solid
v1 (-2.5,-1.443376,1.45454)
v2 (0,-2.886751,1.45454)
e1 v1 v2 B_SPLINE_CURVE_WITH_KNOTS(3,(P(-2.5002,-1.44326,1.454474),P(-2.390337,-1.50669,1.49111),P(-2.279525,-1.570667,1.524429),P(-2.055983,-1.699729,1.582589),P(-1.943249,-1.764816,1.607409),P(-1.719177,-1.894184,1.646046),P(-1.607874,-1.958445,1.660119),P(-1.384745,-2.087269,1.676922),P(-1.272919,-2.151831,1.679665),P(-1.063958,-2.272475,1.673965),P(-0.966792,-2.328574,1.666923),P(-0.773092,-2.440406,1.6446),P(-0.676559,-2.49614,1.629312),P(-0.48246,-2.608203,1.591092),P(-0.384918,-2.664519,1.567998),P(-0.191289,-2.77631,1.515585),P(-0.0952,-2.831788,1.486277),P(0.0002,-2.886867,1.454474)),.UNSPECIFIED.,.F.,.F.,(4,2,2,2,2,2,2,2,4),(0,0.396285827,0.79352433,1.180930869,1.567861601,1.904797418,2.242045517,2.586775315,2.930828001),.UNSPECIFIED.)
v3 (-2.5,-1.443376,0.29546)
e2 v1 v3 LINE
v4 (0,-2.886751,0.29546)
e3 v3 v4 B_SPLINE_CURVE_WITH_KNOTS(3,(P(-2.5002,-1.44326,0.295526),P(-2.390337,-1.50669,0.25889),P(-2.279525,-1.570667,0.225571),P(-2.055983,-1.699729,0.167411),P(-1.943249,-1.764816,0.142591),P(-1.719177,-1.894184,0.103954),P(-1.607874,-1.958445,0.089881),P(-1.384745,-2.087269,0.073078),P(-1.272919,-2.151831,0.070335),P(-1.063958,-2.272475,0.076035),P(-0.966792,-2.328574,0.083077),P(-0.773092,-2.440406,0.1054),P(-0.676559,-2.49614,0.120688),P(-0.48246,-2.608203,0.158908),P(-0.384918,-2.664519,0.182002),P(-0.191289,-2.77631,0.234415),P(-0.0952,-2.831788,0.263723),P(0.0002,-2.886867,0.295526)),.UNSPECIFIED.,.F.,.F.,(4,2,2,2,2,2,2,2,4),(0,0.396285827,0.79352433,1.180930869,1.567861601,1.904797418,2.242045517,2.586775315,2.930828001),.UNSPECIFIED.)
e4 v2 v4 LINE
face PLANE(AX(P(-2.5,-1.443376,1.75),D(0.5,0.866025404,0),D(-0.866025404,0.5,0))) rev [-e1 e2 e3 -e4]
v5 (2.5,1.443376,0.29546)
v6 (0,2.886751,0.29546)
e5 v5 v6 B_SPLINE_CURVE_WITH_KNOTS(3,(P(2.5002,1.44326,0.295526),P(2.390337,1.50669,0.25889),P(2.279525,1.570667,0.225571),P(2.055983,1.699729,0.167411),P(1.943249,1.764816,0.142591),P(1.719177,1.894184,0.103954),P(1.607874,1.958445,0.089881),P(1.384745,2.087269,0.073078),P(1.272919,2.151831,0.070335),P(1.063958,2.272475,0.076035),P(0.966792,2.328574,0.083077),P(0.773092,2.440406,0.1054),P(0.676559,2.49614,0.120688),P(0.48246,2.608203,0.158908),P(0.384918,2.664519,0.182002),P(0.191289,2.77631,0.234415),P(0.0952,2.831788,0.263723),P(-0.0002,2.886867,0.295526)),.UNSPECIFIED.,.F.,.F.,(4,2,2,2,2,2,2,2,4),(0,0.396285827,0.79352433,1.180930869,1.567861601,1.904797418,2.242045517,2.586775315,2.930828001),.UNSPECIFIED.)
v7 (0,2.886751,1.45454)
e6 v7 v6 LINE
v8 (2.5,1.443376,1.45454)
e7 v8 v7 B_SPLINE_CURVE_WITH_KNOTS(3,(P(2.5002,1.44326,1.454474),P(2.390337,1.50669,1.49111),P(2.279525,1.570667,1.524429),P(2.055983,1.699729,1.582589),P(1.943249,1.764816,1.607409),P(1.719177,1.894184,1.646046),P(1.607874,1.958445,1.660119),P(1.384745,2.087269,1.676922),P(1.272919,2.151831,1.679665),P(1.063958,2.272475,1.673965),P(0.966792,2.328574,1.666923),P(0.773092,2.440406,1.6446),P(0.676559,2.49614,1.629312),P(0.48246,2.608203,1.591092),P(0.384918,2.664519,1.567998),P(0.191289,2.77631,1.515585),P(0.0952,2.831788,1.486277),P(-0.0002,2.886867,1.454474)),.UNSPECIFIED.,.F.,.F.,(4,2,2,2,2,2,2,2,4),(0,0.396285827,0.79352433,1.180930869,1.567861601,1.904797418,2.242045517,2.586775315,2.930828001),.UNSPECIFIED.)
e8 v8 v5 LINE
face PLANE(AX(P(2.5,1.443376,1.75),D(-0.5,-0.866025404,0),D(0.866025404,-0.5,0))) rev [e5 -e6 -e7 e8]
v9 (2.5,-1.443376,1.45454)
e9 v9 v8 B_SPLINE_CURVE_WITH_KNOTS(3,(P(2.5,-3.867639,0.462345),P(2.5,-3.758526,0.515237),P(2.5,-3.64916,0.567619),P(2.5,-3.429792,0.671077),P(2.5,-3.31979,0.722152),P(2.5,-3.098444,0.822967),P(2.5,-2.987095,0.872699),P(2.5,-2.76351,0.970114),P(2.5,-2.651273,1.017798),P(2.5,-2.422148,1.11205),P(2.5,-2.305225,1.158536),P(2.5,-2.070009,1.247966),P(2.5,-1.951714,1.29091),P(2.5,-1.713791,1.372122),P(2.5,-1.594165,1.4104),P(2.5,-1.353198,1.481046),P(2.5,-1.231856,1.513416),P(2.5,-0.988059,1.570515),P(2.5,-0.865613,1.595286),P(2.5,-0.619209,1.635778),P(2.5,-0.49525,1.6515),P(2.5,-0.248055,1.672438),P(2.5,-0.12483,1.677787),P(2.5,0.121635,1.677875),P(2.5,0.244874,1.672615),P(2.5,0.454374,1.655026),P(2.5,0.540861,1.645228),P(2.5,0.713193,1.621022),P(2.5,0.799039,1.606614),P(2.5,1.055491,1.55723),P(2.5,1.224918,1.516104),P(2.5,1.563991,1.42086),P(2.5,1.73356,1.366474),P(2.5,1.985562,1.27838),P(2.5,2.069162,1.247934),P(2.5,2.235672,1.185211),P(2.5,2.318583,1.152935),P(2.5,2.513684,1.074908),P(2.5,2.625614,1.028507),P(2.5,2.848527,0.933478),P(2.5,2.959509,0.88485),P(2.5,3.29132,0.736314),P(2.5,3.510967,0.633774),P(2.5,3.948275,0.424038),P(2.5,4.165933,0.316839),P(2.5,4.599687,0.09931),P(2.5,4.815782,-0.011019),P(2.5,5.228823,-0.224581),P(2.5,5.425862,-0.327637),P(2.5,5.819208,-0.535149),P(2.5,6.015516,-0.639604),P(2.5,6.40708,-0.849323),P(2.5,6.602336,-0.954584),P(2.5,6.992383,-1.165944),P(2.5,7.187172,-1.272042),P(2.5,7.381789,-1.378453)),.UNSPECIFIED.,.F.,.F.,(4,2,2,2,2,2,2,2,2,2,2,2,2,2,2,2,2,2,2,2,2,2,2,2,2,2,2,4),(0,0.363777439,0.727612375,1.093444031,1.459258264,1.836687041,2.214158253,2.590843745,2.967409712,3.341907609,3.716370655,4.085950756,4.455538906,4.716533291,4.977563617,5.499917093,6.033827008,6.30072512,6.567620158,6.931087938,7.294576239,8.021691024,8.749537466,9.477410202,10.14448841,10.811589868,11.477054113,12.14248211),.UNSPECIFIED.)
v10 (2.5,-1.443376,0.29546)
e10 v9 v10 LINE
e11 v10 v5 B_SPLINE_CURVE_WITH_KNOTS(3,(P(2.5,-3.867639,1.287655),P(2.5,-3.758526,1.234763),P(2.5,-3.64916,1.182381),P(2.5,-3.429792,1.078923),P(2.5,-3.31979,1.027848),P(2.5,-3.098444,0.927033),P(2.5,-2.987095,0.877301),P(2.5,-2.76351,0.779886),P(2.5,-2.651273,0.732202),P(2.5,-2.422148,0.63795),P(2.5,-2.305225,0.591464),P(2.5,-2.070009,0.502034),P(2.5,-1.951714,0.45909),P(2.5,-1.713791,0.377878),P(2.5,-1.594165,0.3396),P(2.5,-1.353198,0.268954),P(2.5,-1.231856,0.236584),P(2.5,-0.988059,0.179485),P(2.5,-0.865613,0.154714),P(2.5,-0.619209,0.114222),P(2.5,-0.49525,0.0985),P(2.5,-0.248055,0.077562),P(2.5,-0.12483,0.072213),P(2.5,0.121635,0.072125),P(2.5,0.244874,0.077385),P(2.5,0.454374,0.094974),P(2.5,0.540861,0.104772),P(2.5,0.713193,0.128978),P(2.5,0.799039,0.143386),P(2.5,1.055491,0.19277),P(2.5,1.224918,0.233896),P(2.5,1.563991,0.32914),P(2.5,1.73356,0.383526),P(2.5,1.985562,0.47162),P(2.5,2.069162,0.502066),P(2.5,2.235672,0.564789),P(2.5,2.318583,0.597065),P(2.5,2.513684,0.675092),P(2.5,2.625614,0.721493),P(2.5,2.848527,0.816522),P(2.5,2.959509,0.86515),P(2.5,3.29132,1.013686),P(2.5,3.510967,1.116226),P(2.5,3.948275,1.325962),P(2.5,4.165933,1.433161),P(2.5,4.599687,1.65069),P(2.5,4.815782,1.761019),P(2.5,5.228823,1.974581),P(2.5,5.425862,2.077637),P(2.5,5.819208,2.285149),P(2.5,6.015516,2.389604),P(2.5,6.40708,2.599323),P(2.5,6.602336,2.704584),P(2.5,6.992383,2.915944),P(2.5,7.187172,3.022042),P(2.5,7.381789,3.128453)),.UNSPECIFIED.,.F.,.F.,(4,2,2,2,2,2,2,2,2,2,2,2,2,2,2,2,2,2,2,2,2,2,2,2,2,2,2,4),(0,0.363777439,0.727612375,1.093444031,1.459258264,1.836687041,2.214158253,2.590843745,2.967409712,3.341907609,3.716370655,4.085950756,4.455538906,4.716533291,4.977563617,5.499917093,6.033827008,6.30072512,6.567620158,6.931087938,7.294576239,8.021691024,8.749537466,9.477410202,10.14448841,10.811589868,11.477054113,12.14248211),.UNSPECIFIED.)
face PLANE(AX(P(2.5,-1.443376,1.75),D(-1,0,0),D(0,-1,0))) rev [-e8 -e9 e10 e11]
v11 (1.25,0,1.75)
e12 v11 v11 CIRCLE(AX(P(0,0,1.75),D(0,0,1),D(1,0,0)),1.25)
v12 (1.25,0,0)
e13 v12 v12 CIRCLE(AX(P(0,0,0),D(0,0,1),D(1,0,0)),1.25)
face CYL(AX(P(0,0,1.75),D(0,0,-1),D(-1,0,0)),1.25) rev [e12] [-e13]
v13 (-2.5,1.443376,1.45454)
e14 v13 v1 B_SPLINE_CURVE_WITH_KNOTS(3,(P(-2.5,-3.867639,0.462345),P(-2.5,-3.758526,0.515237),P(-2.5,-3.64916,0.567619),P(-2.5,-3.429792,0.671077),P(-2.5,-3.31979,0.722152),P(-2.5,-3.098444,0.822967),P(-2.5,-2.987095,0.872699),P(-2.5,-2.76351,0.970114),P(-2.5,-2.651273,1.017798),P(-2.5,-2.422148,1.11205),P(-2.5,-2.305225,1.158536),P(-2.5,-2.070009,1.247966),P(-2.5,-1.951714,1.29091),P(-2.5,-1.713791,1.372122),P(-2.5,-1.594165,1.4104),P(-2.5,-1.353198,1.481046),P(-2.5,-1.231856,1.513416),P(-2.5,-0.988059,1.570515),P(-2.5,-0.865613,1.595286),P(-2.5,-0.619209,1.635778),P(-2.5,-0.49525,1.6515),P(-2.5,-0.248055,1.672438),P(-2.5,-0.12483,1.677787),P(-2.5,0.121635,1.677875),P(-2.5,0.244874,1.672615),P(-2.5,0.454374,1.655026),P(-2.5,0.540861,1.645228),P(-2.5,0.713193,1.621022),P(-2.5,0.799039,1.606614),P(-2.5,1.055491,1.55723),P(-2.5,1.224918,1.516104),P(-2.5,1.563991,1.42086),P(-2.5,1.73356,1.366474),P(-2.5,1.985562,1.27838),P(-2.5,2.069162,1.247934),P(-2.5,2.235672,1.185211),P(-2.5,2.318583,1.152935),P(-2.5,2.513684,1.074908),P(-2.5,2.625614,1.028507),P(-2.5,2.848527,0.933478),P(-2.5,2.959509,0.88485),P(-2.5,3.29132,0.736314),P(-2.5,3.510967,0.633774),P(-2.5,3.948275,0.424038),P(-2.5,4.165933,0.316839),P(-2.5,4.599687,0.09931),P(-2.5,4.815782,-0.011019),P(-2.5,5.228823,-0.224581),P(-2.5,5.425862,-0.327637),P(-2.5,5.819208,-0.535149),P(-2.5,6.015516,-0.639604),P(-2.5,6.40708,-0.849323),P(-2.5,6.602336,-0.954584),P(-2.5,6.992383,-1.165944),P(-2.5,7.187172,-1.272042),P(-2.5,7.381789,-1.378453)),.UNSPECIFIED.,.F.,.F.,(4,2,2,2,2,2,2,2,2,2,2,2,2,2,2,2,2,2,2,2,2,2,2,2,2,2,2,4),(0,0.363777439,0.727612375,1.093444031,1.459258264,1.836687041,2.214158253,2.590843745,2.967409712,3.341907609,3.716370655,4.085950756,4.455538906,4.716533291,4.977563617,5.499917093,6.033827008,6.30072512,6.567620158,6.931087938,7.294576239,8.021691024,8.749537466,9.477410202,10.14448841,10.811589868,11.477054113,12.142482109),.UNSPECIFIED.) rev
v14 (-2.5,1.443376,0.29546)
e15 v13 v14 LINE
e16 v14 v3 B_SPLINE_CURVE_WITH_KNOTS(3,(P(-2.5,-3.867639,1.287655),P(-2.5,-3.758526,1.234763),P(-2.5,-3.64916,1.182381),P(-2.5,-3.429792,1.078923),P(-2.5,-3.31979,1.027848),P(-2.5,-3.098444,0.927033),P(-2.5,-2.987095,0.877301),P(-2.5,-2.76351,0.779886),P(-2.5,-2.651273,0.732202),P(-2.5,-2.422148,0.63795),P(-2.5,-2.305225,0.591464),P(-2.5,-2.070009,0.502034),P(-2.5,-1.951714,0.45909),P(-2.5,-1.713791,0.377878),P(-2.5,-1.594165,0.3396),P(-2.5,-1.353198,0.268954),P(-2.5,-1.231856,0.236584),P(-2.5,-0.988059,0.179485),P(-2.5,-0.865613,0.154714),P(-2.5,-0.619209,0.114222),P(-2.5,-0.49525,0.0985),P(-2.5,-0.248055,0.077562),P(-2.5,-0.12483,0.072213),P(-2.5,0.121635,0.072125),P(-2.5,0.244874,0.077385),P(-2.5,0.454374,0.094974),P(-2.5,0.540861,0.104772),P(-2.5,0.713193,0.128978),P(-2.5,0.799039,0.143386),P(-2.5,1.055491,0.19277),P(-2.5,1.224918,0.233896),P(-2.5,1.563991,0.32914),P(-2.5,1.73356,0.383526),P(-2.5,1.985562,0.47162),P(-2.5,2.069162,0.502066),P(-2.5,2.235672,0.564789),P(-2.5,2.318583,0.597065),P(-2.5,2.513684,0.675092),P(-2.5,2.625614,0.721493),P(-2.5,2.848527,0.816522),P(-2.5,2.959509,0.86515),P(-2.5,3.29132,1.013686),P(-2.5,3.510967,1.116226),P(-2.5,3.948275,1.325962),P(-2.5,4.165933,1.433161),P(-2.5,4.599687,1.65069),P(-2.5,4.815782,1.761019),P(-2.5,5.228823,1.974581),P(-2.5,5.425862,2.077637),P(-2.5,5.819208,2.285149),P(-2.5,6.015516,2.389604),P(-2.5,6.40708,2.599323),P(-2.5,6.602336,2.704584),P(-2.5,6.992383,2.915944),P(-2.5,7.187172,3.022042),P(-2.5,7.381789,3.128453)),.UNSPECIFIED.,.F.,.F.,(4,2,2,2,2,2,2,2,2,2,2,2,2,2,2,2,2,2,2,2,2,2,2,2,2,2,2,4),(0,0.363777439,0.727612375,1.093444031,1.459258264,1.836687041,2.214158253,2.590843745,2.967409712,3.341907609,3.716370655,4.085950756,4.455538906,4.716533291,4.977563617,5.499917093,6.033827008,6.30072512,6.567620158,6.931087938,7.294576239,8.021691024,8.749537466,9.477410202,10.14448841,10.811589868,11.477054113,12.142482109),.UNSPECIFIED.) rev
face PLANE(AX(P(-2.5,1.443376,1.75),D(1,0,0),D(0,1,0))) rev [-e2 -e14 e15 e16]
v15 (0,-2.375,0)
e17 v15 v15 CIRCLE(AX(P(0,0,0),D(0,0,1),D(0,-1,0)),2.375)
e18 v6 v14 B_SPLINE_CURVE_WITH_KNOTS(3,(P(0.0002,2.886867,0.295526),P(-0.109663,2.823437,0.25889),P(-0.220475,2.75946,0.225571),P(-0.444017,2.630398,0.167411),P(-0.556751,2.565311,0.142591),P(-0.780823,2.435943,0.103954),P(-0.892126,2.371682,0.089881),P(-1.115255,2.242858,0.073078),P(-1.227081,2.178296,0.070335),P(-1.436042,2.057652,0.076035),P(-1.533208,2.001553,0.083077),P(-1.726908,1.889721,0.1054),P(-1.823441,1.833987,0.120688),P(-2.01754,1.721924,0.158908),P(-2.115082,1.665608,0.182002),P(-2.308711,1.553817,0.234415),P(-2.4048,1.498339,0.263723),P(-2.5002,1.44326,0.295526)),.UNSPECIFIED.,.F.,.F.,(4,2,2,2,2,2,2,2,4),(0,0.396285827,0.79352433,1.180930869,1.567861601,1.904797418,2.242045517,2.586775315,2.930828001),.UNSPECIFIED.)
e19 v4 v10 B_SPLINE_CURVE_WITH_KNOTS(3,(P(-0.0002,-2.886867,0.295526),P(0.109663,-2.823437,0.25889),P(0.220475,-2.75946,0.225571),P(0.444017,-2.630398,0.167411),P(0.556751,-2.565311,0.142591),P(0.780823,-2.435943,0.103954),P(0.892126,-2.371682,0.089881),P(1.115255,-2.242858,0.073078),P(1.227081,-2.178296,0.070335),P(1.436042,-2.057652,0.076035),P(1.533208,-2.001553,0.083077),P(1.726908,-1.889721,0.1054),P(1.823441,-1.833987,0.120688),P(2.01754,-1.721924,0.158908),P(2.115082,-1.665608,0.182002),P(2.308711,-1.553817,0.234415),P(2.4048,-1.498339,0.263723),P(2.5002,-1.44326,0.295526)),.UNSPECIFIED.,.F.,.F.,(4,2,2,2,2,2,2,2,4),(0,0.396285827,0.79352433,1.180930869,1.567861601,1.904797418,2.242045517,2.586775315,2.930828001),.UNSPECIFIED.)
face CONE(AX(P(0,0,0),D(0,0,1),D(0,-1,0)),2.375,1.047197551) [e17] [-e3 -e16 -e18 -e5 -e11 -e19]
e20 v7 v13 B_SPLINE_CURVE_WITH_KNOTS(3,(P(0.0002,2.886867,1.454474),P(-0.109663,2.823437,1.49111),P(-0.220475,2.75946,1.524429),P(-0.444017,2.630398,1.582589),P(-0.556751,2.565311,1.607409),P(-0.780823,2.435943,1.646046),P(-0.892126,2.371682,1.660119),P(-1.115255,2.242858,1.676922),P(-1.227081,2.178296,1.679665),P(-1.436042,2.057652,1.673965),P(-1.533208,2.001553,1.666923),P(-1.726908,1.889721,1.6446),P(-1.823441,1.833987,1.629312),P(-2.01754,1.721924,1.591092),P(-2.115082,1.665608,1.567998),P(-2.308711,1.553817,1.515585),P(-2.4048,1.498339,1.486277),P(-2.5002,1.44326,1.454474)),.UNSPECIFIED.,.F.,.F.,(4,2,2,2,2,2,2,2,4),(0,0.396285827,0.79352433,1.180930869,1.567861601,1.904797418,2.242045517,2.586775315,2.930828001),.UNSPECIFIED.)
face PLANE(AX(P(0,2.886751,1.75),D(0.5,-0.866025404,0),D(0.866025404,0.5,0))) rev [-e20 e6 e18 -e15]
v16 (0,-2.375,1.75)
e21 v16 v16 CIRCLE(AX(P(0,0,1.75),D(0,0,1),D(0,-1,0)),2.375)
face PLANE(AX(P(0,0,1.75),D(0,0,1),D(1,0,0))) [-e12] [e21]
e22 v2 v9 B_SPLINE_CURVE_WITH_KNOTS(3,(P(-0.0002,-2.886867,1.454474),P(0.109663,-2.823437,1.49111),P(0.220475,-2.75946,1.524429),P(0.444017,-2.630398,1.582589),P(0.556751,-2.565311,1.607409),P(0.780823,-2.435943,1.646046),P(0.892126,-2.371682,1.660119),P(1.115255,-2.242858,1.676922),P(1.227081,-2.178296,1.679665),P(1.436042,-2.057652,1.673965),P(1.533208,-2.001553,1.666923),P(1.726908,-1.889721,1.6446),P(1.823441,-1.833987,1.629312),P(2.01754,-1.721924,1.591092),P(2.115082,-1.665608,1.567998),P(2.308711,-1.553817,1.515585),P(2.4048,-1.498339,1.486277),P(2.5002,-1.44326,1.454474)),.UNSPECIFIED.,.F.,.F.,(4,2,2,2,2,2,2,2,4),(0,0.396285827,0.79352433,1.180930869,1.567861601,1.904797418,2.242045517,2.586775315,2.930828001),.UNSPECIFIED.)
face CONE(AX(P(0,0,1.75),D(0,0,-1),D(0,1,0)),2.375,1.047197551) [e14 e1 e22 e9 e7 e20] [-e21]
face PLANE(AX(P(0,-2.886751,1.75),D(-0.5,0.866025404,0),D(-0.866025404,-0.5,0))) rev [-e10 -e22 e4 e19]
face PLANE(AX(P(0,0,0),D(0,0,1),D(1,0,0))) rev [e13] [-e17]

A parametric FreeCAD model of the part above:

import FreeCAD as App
import Part
import Sketcher
Q = App.Units.Quantity

doc = App.newDocument("Part")
body = doc.addObject("PartDesign::Body", "Body")

# Sketch on XY plane
sketch1 = body.newObject("Sketcher::SketchObject", "Sketch")
sketch1.AttachmentSupport = (doc.getObject("XY_Plane"), [""])
sketch1.MapMode = "FlatFace"
sketch1.addGeometry([
    Part.LineSegment(App.Vector(0, 2.886751, 0), App.Vector(-2.5, 1.443376, 0)),  # 0
    Part.LineSegment(App.Vector(-2.5, 1.443376, 0), App.Vector(-2.5, -1.443376, 0)),  # 1
    Part.LineSegment(App.Vector(-2.5, -1.443376, 0), App.Vector(0, -2.886751, 0)),  # 2
    Part.LineSegment(App.Vector(0, -2.886751, 0), App.Vector(2.5, -1.443376, 0)),  # 3
    Part.LineSegment(App.Vector(2.5, -1.443376, 0), App.Vector(2.5, 1.443376, 0)),  # 4
    Part.LineSegment(App.Vector(2.5, 1.443376, 0), App.Vector(0, 2.886751, 0)),  # 5
    Part.Circle(App.Vector(0, 0, 0), App.Vector(0, 0, 1), 1.25),  # 6
], False)
sketch1.addConstraint([
    Sketcher.Constraint("Coincident", 0, 2, 1, 1),
    Sketcher.Constraint("Coincident", 1, 2, 2, 1),
    Sketcher.Constraint("Coincident", 2, 2, 3, 1),
    Sketcher.Constraint("Coincident", 3, 2, 4, 1),
    Sketcher.Constraint("Coincident", 4, 2, 5, 1),
    Sketcher.Constraint("Coincident", 5, 2, 0, 1),
    Sketcher.Constraint("Vertical", 1),
    Sketcher.Constraint("Vertical", 4),
    Sketcher.Constraint("Coincident", 6, 3, -1, 1),
    Sketcher.Constraint("Symmetric", 0, 2, 3, 2, -1, 1),
    Sketcher.Constraint("Symmetric", 2, 2, 5, 2, -1, 1),
    Sketcher.Constraint("PointOnObject", 2, 2, -2),
    Sketcher.Constraint("Parallel", 2, 5),
    Sketcher.Constraint("Horizontal", 1, 2, 3, 2),
    Sketcher.Constraint("Diameter", 6, 2.5),
    Sketcher.Constraint("Angle", 0, Q("-150 deg")),
    Sketcher.Constraint("DistanceX", 1, 2, 3, 2, 5.0),
    Sketcher.Constraint("DistanceY", 1, 2, 1, 1, 2.886751),
])
pad1 = body.newObject("PartDesign::Pad", "Pad")
pad1.Profile = sketch1
pad1.Length = 1.75

# Sketch on YZ plane
sketch2 = body.newObject("Sketcher::SketchObject", "Sketch001")
sketch2.AttachmentSupport = (doc.getObject("YZ_Plane"), [""])
sketch2.MapMode = "FlatFace"
sketch2.addGeometry([
    Part.LineSegment(App.Vector(2.375, 1.75, 0), App.Vector(3.504429, 1.097924, 0)),  # 0
    Part.LineSegment(App.Vector(3.504429, 1.097924, 0), App.Vector(3.504429, 1.75, 0)),  # 1
    Part.LineSegment(App.Vector(3.504429, 1.75, 0), App.Vector(2.375, 1.75, 0)),  # 2
    Part.LineSegment(App.Vector(3.504429, 0.652076, 0), App.Vector(2.375, 0, 0)),  # 3
    Part.LineSegment(App.Vector(2.375, 0, 0), App.Vector(3.504429, 0, 0)),  # 4
    Part.LineSegment(App.Vector(3.504429, 0, 0), App.Vector(3.504429, 0.652076, 0)),  # 5
], False)
sketch2.addConstraint([
    Sketcher.Constraint("Coincident", 0, 2, 1, 1),
    Sketcher.Constraint("Coincident", 1, 2, 2, 1),
    Sketcher.Constraint("Coincident", 2, 2, 0, 1),
    Sketcher.Constraint("Coincident", 3, 2, 4, 1),
    Sketcher.Constraint("Coincident", 4, 2, 5, 1),
    Sketcher.Constraint("Coincident", 5, 2, 3, 1),
    Sketcher.Constraint("Vertical", 1),
    Sketcher.Constraint("Horizontal", 2),
    Sketcher.Constraint("Horizontal", 4),
    Sketcher.Constraint("Vertical", 5),
    Sketcher.Constraint("PointOnObject", 3, 2, -1),
    Sketcher.Constraint("Vertical", 2, 2, 3, 2),
    Sketcher.Constraint("Vertical", 1, 2, 4, 2),
    Sketcher.Constraint("Equal", 1, 5),
    Sketcher.Constraint("Angle", 0, Q("-30 deg")),
    Sketcher.Constraint("DistanceY", -1, 1, 1, 2, 1.75),
    Sketcher.Constraint("DistanceX", -1, 1, 2, 2, 2.375),
    Sketcher.Constraint("DistanceX", 2, 2, 2, 1, 1.129429),
])
groove = body.newObject("PartDesign::Groove", "Groove")
groove.Profile = sketch2
groove.ReferenceAxis = (sketch2, ["V_Axis"])
groove.Angle = 360

doc.recompute()
